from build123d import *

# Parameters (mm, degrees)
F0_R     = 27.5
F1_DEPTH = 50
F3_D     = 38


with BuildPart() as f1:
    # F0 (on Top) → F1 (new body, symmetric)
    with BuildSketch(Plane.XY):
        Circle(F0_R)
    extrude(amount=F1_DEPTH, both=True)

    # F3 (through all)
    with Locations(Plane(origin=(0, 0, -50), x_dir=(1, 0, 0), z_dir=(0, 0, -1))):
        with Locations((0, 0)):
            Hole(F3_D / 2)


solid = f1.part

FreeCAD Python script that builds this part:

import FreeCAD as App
import Part
import Sketcher
from FreeCAD import Vector
Q = App.Units.Quantity

doc = App.newDocument("Part")
body = doc.addObject("PartDesign::Body", "Body")

sketch1 = body.newObject("Sketcher::SketchObject", "Sketch")
sketch1.AttachmentSupport = (doc.getObject("XY_Plane"), [""])
sketch1.MapMode = "FlatFace"
sketch1.addGeometry(Part.Circle(Vector(0, 0, 0), Vector(0, 0, 1), 28), False)
sketch1.addConstraint(Sketcher.Constraint("Coincident", 0, 3, -1, 1))
sketch1.addConstraint(Sketcher.Constraint("Diameter", 0, Q("55 mm")))
pad1 = body.newObject("PartDesign::Pad", "Pad")
pad1.Profile = sketch1
pad1.Length = 100
pad1.Midplane = True

sketch2 = body.newObject("Sketcher::SketchObject", "Sketch001")
sketch2.AttachmentSupport = (doc.getObject("XY_Plane"), [""])
sketch2.MapMode = "FlatFace"
sketch2.AttachmentOffset = App.Placement(Vector(0, 0, -50), App.Rotation())
sketch2.addGeometry(Part.Circle(Vector(0, 0, 0), Vector(0, 0, 1), 19), False)
sketch2.addConstraint(Sketcher.Constraint("Coincident", 0, 3, -1, 1))
sketch2.addConstraint(Sketcher.Constraint("Diameter", 0, Q("38 mm")))
doc.recompute()
hole = body.newObject("PartDesign::Hole", "Hole")
hole.Profile = sketch2
hole.ThreadType = "None"
hole.Diameter = 38
hole.DepthType = "ThroughAll"
hole.Reversed = True

doc.recompute()
